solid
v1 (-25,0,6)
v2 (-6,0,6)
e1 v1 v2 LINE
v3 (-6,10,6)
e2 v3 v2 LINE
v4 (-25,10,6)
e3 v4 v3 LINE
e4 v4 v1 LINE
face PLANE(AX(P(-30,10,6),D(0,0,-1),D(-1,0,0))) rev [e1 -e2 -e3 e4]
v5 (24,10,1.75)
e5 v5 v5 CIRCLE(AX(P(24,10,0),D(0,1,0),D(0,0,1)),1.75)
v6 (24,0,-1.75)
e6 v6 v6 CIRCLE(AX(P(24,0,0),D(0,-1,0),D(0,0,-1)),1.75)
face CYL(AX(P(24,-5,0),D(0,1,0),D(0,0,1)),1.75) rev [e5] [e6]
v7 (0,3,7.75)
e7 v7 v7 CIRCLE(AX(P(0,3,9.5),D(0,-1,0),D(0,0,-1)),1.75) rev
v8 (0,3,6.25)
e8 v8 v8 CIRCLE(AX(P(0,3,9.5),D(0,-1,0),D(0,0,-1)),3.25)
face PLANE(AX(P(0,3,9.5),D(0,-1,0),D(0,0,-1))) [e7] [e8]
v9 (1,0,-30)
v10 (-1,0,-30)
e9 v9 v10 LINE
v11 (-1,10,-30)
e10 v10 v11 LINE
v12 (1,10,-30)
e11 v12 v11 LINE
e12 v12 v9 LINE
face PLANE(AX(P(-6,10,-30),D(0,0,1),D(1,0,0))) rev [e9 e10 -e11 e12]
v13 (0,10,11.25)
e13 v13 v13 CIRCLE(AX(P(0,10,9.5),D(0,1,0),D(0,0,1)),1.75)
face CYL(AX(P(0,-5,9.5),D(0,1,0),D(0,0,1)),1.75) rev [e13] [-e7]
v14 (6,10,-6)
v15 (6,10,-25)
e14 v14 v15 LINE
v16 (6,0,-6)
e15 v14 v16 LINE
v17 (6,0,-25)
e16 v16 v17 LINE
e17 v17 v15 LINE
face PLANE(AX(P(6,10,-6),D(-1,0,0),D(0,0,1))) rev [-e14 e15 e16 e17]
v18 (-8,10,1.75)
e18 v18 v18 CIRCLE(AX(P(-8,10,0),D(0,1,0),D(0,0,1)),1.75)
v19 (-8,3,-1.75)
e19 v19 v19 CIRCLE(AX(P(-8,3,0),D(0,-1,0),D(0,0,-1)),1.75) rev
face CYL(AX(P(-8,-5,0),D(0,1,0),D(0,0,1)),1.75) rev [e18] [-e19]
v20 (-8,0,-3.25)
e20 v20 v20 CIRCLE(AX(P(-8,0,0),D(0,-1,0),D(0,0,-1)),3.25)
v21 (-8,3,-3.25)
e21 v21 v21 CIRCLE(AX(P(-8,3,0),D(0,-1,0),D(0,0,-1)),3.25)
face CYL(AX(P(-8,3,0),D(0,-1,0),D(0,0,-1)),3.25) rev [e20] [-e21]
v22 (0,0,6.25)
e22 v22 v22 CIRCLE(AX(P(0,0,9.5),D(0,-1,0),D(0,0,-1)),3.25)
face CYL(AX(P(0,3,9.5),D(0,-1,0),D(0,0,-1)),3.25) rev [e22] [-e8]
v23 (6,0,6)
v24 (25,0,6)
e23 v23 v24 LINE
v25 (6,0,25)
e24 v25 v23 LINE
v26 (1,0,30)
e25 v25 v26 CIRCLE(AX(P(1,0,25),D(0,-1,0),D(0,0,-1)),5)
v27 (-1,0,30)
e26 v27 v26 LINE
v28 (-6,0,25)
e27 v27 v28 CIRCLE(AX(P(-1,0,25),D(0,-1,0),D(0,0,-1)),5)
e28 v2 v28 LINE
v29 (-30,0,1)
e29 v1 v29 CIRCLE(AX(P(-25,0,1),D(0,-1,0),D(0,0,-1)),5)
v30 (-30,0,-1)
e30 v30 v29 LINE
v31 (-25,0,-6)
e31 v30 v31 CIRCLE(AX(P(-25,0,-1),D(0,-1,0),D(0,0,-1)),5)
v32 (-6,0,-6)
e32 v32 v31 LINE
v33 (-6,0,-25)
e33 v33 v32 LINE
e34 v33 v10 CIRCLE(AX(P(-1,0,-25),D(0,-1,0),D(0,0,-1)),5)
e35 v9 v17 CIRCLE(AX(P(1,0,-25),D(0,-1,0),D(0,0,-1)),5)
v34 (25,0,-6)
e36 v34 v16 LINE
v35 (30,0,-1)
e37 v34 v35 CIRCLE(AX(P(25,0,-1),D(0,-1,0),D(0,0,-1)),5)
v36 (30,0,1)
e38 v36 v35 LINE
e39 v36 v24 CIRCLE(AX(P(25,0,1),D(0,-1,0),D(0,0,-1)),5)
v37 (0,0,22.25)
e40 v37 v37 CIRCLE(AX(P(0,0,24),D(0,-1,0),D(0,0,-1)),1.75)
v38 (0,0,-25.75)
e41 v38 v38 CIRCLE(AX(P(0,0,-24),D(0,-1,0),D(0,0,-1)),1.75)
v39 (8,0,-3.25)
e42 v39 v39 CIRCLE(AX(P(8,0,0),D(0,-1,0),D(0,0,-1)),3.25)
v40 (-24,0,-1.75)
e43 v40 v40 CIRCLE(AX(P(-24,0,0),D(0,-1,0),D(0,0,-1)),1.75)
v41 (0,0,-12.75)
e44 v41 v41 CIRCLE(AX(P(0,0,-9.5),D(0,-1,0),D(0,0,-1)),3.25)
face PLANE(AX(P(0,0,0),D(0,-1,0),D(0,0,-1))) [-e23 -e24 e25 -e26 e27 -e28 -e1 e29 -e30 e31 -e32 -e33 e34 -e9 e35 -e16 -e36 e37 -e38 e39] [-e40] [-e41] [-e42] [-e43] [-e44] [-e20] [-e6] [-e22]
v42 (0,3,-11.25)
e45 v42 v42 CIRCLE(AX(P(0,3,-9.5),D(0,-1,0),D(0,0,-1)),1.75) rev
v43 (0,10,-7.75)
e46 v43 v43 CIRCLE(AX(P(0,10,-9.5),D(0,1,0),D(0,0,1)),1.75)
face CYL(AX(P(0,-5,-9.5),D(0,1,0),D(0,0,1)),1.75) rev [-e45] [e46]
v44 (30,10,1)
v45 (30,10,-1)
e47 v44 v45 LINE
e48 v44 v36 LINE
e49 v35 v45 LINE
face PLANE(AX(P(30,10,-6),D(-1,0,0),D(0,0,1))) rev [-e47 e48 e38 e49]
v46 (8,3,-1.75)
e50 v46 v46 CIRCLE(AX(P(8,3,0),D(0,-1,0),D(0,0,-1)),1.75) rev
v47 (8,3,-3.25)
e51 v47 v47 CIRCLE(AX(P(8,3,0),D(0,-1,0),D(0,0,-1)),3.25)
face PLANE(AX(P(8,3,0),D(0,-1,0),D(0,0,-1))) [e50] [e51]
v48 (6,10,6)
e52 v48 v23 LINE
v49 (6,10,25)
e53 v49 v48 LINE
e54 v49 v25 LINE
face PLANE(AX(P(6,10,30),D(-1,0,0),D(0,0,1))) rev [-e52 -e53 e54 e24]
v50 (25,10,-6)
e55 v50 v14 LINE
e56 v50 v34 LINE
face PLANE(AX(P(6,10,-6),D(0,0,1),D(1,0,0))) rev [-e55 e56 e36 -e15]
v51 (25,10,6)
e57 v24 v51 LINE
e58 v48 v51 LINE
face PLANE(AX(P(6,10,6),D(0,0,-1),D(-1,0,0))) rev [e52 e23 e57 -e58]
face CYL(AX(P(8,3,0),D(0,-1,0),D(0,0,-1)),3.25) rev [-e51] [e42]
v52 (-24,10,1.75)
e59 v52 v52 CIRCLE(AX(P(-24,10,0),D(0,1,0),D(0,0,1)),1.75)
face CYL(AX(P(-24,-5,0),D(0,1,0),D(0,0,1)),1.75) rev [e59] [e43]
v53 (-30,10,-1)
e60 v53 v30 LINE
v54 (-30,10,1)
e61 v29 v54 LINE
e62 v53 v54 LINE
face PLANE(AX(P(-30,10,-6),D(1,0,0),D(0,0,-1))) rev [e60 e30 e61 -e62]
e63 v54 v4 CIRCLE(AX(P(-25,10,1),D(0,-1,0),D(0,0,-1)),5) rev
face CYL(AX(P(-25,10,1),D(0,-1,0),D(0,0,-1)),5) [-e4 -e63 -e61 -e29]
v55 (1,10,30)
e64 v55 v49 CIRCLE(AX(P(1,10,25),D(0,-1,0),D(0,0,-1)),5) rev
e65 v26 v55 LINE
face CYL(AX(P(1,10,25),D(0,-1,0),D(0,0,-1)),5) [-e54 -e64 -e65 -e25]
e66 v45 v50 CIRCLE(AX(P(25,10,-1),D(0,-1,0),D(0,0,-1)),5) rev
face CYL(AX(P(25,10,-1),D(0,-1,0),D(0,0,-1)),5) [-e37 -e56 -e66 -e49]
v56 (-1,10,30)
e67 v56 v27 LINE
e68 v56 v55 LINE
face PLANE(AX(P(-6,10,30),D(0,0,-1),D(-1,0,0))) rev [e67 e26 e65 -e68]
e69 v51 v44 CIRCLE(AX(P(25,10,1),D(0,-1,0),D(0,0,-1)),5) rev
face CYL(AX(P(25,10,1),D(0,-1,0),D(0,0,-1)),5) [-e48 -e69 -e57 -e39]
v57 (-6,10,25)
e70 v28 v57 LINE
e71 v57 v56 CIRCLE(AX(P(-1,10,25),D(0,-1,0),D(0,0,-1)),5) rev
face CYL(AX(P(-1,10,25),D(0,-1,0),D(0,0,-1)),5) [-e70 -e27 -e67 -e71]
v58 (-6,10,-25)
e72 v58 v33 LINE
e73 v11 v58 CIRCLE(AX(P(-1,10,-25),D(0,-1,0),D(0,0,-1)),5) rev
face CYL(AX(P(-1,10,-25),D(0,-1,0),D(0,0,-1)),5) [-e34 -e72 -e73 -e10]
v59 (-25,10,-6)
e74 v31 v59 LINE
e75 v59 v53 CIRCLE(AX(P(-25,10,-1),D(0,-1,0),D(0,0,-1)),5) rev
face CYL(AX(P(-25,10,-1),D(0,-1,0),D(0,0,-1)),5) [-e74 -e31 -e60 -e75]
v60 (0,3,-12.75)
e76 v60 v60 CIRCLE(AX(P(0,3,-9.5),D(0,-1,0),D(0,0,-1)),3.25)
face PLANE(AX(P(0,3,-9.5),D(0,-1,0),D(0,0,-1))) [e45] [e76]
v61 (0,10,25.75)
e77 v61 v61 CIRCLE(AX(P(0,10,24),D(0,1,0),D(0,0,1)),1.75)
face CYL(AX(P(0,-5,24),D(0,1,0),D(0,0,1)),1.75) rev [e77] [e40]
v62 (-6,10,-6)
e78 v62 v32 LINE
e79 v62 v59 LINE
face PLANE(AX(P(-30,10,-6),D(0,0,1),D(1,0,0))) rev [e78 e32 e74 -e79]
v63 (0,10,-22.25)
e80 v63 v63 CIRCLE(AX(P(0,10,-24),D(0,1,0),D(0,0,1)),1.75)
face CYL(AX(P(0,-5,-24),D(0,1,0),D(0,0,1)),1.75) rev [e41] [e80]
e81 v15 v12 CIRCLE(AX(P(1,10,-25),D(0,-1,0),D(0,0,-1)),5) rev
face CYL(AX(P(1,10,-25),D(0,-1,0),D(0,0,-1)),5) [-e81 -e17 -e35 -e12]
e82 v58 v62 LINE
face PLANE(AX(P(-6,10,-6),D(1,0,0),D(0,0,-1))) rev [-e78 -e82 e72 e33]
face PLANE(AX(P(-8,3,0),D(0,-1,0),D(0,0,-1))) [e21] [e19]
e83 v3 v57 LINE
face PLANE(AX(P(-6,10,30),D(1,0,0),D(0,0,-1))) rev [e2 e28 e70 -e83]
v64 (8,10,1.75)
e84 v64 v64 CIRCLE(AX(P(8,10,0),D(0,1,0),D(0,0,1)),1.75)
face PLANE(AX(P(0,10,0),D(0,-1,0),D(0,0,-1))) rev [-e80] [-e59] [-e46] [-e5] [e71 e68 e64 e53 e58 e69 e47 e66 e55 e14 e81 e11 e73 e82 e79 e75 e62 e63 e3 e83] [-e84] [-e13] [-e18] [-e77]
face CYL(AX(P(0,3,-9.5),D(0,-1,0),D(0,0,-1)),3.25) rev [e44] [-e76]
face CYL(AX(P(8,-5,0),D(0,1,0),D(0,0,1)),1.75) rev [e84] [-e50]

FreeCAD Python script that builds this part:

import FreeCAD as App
import Part
import Sketcher

V = App.Vector
Q = App.Units.Quantity


def edges_at(feature, points):
    """Names of the edges that pass closest to the given points."""
    edges = feature.Shape.Edges
    near = lambda p: min(range(len(edges)), key=lambda i: edges[i].distToShape(Part.Vertex(*p))[0])
    return sorted({f"Edge{near(p) + 1}" for p in points})

doc = App.newDocument("Part")
body = doc.addObject("PartDesign::Body", "Body")

sketch1 = body.newObject("Sketcher::SketchObject", "Sketch")
sketch1.AttachmentSupport = (doc.getObject("XZ_Plane"), [""])
sketch1.MapMode = "FlatFace"
sketch1.addGeometry([
    Part.LineSegment(V(30, -6, 0), V(6, -6, 0)),
    Part.LineSegment(V(6, -6, 0), V(6, -30, 0)),
    Part.LineSegment(V(6, -30, 0), V(-6, -30, 0)),
    Part.LineSegment(V(-6, -30, 0), V(-6, -6, 0)),
    Part.LineSegment(V(-6, -6, 0), V(-30, -6, 0)),
    Part.LineSegment(V(-30, -6, 0), V(-30, 6, 0)),
    Part.LineSegment(V(-30, 6, 0), V(-6, 6, 0)),
    Part.LineSegment(V(-6, 6, 0), V(-6, 30, 0)),
    Part.LineSegment(V(-6, 30, 0), V(6, 30, 0)),
    Part.LineSegment(V(6, 30, 0), V(6, 6, 0)),
    Part.LineSegment(V(6, 6, 0), V(30, 6, 0)),
    Part.LineSegment(V(30, 6, 0), V(30, -6, 0)),
], False)
sketch1.addConstraint([
    Sketcher.Constraint("Coincident", 0, 2, 1, 1),
    Sketcher.Constraint("Coincident", 1, 2, 2, 1),
    Sketcher.Constraint("Coincident", 2, 2, 3, 1),
    Sketcher.Constraint("Coincident", 3, 2, 4, 1),
    Sketcher.Constraint("Coincident", 4, 2, 5, 1),
    Sketcher.Constraint("Coincident", 5, 2, 6, 1),
    Sketcher.Constraint("Coincident", 6, 2, 7, 1),
    Sketcher.Constraint("Coincident", 7, 2, 8, 1),
    Sketcher.Constraint("Coincident", 8, 2, 9, 1),
    Sketcher.Constraint("Coincident", 9, 2, 10, 1),
    Sketcher.Constraint("Coincident", 10, 2, 11, 1),
    Sketcher.Constraint("Coincident", 11, 2, 0, 1),
    Sketcher.Constraint("Horizontal", 0),
    Sketcher.Constraint("Vertical", 1),
    Sketcher.Constraint("Horizontal", 2),
    Sketcher.Constraint("Vertical", 3),
    Sketcher.Constraint("Horizontal", 4),
    Sketcher.Constraint("Vertical", 5),
    Sketcher.Constraint("Horizontal", 6),
    Sketcher.Constraint("Vertical", 7),
    Sketcher.Constraint("Horizontal", 8),
    Sketcher.Constraint("Vertical", 9),
    Sketcher.Constraint("Horizontal", 10),
    Sketcher.Constraint("Vertical", 11),
    Sketcher.Constraint("Symmetric", 0, 2, 6, 2, -1, 1),
    Sketcher.Constraint("Symmetric", 2, 2, 8, 2, -1, 1),
    Sketcher.Constraint("Symmetric", 4, 2, 10, 2, -1, 1),
    Sketcher.Constraint("Symmetric", 0, 2, 3, 2, -2),
    Sketcher.Constraint("Equal", 10, 1),
    Sketcher.Constraint("Equal", 8, 5),
    Sketcher.Constraint("DistanceX", 0, 2, 0, 1, Q("24 mm")),
    Sketcher.Constraint("DistanceX", 2, 2, 2, 1, Q("12 mm")),
])
pad1 = body.newObject("PartDesign::Pad", "Pad")
pad1.Profile = sketch1
pad1.Length = 10
pad1.Reversed = True
doc.recompute()

fillet = body.newObject("PartDesign::Fillet", "Fillet")
fillet.Base = (pad1, edges_at(pad1, [
    (30, 5, -6),
    (30, 5, 6),
    (6, 5, 30),
    (-6, 5, 30),
    (-30, 5, 6),
    (-30, 5, -6),
    (-6, 5, -30),
    (6, 5, -30),
]))
fillet.Radius = 5

sketch2 = body.newObject("Sketcher::SketchObject", "Sketch001")
sketch2.AttachmentSupport = (doc.getObject("XZ_Plane"), [""])
sketch2.MapMode = "FlatFace"
sketch2.AttachmentOffset = App.Placement(V(0, 0, -10), App.Rotation())
sketch2.addGeometry([
    Part.Circle(V(-8, 0, 0), V(0, 0, 1), 1.8),
    Part.Circle(V(8, 0, 0), V(0, 0, 1), 1.8),
    Part.Circle(V(0, -9.5, 0), V(0, 0, 1), 1.8),
    Part.Circle(V(0, 9.5, 0), V(0, 0, 1), 1.8),
], False)
sketch2.addConstraint([
    Sketcher.Constraint("Equal", 0, 1),
    Sketcher.Constraint("Equal", 1, 2),
    Sketcher.Constraint("Equal", 2, 3),
    Sketcher.Constraint("Symmetric", 0, 3, 1, 3, -1, 1),
    Sketcher.Constraint("Symmetric", 2, 3, 3, 3, -1, 1),
    Sketcher.Constraint("PointOnObject", 0, 3, -1),
    Sketcher.Constraint("PointOnObject", 2, 3, -2),
    Sketcher.Constraint("Diameter", 0, Q("3.5 mm")),
    Sketcher.Constraint("DistanceX", 0, 3, -1, 1, Q("8 mm")),
    Sketcher.Constraint("DistanceY", 2, 3, 3, 3, Q("19 mm")),
])
pocket1 = body.newObject("PartDesign::Pocket", "Pocket")
pocket1.Profile = sketch2
pocket1.Length = 15
pocket1.Reversed = True

sketch3 = body.newObject("Sketcher::SketchObject", "Sketch002")
sketch3.AttachmentSupport = (doc.getObject("XZ_Plane"), [""])
sketch3.MapMode = "FlatFace"
sketch3.AttachmentOffset = App.Placement(V(0, 0, -10), App.Rotation())
sketch3.addGeometry([
    Part.Circle(V(0, -24, 0), V(0, 0, 1), 1.8),
    Part.Circle(V(24, 0, 0), V(0, 0, 1), 1.8),
    Part.Circle(V(-24, 0, 0), V(0, 0, 1), 1.8),
    Part.Circle(V(0, 24, 0), V(0, 0, 1), 1.8),
], False)
sketch3.addConstraint([
    Sketcher.Constraint("Equal", 0, 1),
    Sketcher.Constraint("Equal", 1, 2),
    Sketcher.Constraint("Equal", 2, 3),
    Sketcher.Constraint("Symmetric", 1, 3, 2, 3, -1, 1),
    Sketcher.Constraint("Symmetric", 0, 3, 3, 3, -1, 1),
    Sketcher.Constraint("PointOnObject", 0, 3, -2),
    Sketcher.Constraint("PointOnObject", 1, 3, -1),
    Sketcher.Constraint("Diameter", 0, Q("3.5 mm")),
    Sketcher.Constraint("DistanceY", 0, 3, -1, 1, Q("24 mm")),
    Sketcher.Constraint("DistanceX", -1, 1, 1, 3, Q("24 mm")),
])
pocket2 = body.newObject("PartDesign::Pocket", "Pocket001")
pocket2.Profile = sketch3
pocket2.Length = 15
pocket2.Reversed = True

sketch4 = body.newObject("Sketcher::SketchObject", "Sketch003")
sketch4.AttachmentSupport = (doc.getObject("XZ_Plane"), [""])
sketch4.MapMode = "FlatFace"
sketch4.addGeometry([
    Part.Circle(V(0, -9.5, 0), V(0, 0, 1), 3.2),
    Part.Circle(V(-8, 0, 0), V(0, 0, 1), 3.2),
    Part.Circle(V(8, 0, 0), V(0, 0, 1), 3.2),
    Part.Circle(V(0, 9.5, 0), V(0, 0, 1), 3.2),
], False)
sketch4.addConstraint([
    Sketcher.Constraint("Equal", 0, 1),
    Sketcher.Constraint("Equal", 1, 2),
    Sketcher.Constraint("Equal", 2, 3),
    Sketcher.Constraint("Symmetric", 1, 3, 2, 3, -1, 1),
    Sketcher.Constraint("Symmetric", 0, 3, 3, 3, -1, 1),
    Sketcher.Constraint("PointOnObject", 0, 3, -2),
    Sketcher.Constraint("PointOnObject", 1, 3, -1),
    Sketcher.Constraint("Diameter", 0, Q("6.5 mm")),
    Sketcher.Constraint("DistanceX", 1, 3, -1, 1, Q("8 mm")),
    Sketcher.Constraint("DistanceY", 0, 3, 3, 3, Q("19 mm")),
])
pocket3 = body.newObject("PartDesign::Pocket", "Pocket002")
pocket3.Profile = sketch4
pocket3.Length = 3

doc.recompute()
